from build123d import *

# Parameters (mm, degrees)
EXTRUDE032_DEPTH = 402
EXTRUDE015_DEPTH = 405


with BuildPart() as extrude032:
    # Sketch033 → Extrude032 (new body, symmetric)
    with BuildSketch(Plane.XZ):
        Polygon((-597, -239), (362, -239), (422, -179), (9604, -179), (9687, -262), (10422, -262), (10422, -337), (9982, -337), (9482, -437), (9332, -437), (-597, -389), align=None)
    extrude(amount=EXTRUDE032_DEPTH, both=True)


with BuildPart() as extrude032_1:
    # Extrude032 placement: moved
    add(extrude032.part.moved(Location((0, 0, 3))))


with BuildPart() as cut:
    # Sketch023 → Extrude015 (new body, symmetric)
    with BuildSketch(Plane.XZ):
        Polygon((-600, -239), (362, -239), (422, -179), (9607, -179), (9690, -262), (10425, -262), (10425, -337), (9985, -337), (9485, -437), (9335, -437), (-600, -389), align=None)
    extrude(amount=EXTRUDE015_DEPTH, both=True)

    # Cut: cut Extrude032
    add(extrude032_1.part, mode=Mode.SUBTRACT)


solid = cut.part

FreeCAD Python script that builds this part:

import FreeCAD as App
import Part
import Sketcher
from FreeCAD import Vector
Q = App.Units.Quantity

doc = App.newDocument("Part")
body = doc.addObject("PartDesign::Body", "Body")

# Sketch on XZ plane
sketch1 = body.newObject("Sketcher::SketchObject", "Sketch")
sketch1.AttachmentSupport = (doc.getObject("XZ_Plane"), [""])
sketch1.MapMode = "FlatFace"
sketch1.addGeometry([
    Part.LineSegment(Vector(362, -239, 0), Vector(-597, -239, 0)),  # 0
    Part.LineSegment(Vector(-597, -239, 0), Vector(-597, -389, 0)),  # 1
    Part.LineSegment(Vector(-597, -389, 0), Vector(9332, -437, 0)),  # 2
    Part.LineSegment(Vector(9332, -437, 0), Vector(9482, -437, 0)),  # 3
    Part.LineSegment(Vector(9482, -437, 0), Vector(9982, -337, 0)),  # 4
    Part.LineSegment(Vector(9982, -337, 0), Vector(10422, -337, 0)),  # 5
    Part.LineSegment(Vector(10422, -337, 0), Vector(10422, -262, 0)),  # 6
    Part.LineSegment(Vector(10422, -262, 0), Vector(9687, -262, 0)),  # 7
    Part.LineSegment(Vector(9687, -262, 0), Vector(9604, -179, 0)),  # 8
    Part.LineSegment(Vector(9604, -179, 0), Vector(422, -179, 0)),  # 9
    Part.LineSegment(Vector(422, -179, 0), Vector(362, -239, 0)),  # 10
], False)
sketch1.addConstraint([
    Sketcher.Constraint("Coincident", 0, 2, 1, 1),
    Sketcher.Constraint("Coincident", 1, 2, 2, 1),
    Sketcher.Constraint("Coincident", 2, 2, 3, 1),
    Sketcher.Constraint("Coincident", 3, 2, 4, 1),
    Sketcher.Constraint("Coincident", 4, 2, 5, 1),
    Sketcher.Constraint("Coincident", 5, 2, 6, 1),
    Sketcher.Constraint("Coincident", 6, 2, 7, 1),
    Sketcher.Constraint("Coincident", 7, 2, 8, 1),
    Sketcher.Constraint("Coincident", 8, 2, 9, 1),
    Sketcher.Constraint("Coincident", 9, 2, 10, 1),
    Sketcher.Constraint("Coincident", 10, 2, 0, 1),
    Sketcher.Constraint("Horizontal", 0),
    Sketcher.Constraint("Vertical", 1),
    Sketcher.Constraint("Horizontal", 3),
    Sketcher.Constraint("Horizontal", 5),
    Sketcher.Constraint("Vertical", 6),
    Sketcher.Constraint("Horizontal", 7),
    Sketcher.Constraint("Horizontal", 9),
    Sketcher.Constraint("Perpendicular", 8, 10),
    Sketcher.Constraint("Equal", 3, 1),
    Sketcher.Constraint("DistanceX", 0, 2, 0, 1, Q("959 mm")),
    Sketcher.Constraint("DistanceX", 3, 1, 3, 2, Q("150 mm")),
    Sketcher.Constraint("DistanceX", 5, 1, 5, 2, Q("440 mm")),
    Sketcher.Constraint("DistanceX", 7, 2, 7, 1, Q("735 mm")),
    Sketcher.Constraint("DistanceX", 9, 2, 9, 1, Q("9182 mm")),
    Sketcher.Constraint("DistanceY", 6, 1, 6, 2, Q("75 mm")),
    Sketcher.Constraint("Angle", 8, Q("135 deg")),
    Sketcher.Constraint("DistanceX", 0, 2, -1, 1, Q("597 mm")),
    Sketcher.Constraint("DistanceY", 0, 2, -1, 1, Q("239 mm")),
    Sketcher.Constraint("DistanceX", -1, 1, 2, 2, Q("9332 mm")),
    Sketcher.Constraint("DistanceY", 2, 2, -1, 1, Q("437 mm")),
    Sketcher.Constraint("DistanceX", -1, 1, 4, 2, Q("9982 mm")),
    Sketcher.Constraint("DistanceY", 4, 2, -1, 1, Q("337 mm")),
])
pad1 = body.newObject("PartDesign::Pad", "Pad")
pad1.Profile = sketch1
pad1.Length = 804
pad1.Midplane = True
body2 = doc.addObject("PartDesign::Body", "Body001")
doc.recompute()

body.Placement = App.Placement(Vector(0, 0, 3), App.Rotation(Vector(0, 0, 1), 0))
boolean = body2.newObject("PartDesign::Boolean", "Boolean")
boolean.Type = "Fuse"
boolean.addObjects([body])
body3 = doc.addObject("PartDesign::Body", "Body002")

# Sketch on XZ plane
sketch2 = body3.newObject("Sketcher::SketchObject", "Sketch001")
sketch2.AttachmentSupport = (doc.getObject("XZ_Plane002"), [""])
sketch2.MapMode = "FlatFace"
sketch2.addGeometry([
    Part.LineSegment(Vector(362, -239, 0), Vector(-600, -239, 0)),  # 0
    Part.LineSegment(Vector(-600, -239, 0), Vector(-600, -389, 0)),  # 1
    Part.LineSegment(Vector(-600, -389, 0), Vector(9335, -437, 0)),  # 2
    Part.LineSegment(Vector(9335, -437, 0), Vector(9485, -437, 0)),  # 3
    Part.LineSegment(Vector(9485, -437, 0), Vector(9985, -337, 0)),  # 4
    Part.LineSegment(Vector(9985, -337, 0), Vector(10425, -337, 0)),  # 5
    Part.LineSegment(Vector(10425, -337, 0), Vector(10425, -262, 0)),  # 6
    Part.LineSegment(Vector(10425, -262, 0), Vector(9690, -262, 0)),  # 7
    Part.LineSegment(Vector(9690, -262, 0), Vector(9607, -179, 0)),  # 8
    Part.LineSegment(Vector(9607, -179, 0), Vector(422, -179, 0)),  # 9
    Part.LineSegment(Vector(422, -179, 0), Vector(362, -239, 0)),  # 10
], False)
sketch2.addConstraint([
    Sketcher.Constraint("Coincident", 0, 2, 1, 1),
    Sketcher.Constraint("Coincident", 1, 2, 2, 1),
    Sketcher.Constraint("Coincident", 2, 2, 3, 1),
    Sketcher.Constraint("Coincident", 3, 2, 4, 1),
    Sketcher.Constraint("Coincident", 4, 2, 5, 1),
    Sketcher.Constraint("Coincident", 5, 2, 6, 1),
    Sketcher.Constraint("Coincident", 6, 2, 7, 1),
    Sketcher.Constraint("Coincident", 7, 2, 8, 1),
    Sketcher.Constraint("Coincident", 8, 2, 9, 1),
    Sketcher.Constraint("Coincident", 9, 2, 10, 1),
    Sketcher.Constraint("Coincident", 10, 2, 0, 1),
    Sketcher.Constraint("Horizontal", 0),
    Sketcher.Constraint("Vertical", 1),
    Sketcher.Constraint("Horizontal", 3),
    Sketcher.Constraint("Horizontal", 5),
    Sketcher.Constraint("Vertical", 6),
    Sketcher.Constraint("Horizontal", 7),
    Sketcher.Constraint("Horizontal", 9),
    Sketcher.Constraint("Perpendicular", 8, 10),
    Sketcher.Constraint("Equal", 3, 1),
    Sketcher.Constraint("DistanceX", 0, 2, 0, 1, Q("962 mm")),
    Sketcher.Constraint("DistanceX", 3, 1, 3, 2, Q("150 mm")),
    Sketcher.Constraint("DistanceX", 5, 1, 5, 2, Q("440 mm")),
    Sketcher.Constraint("DistanceX", 7, 2, 7, 1, Q("735 mm")),
    Sketcher.Constraint("DistanceX", 9, 2, 9, 1, Q("9185 mm")),
    Sketcher.Constraint("DistanceY", 6, 1, 6, 2, Q("75 mm")),
    Sketcher.Constraint("Angle", 8, Q("135 deg")),
    Sketcher.Constraint("DistanceX", 0, 2, -1, 1, Q("600 mm")),
    Sketcher.Constraint("DistanceY", 0, 2, -1, 1, Q("239 mm")),
    Sketcher.Constraint("DistanceX", -1, 1, 2, 2, Q("9335 mm")),
    Sketcher.Constraint("DistanceY", 2, 2, -1, 1, Q("437 mm")),
    Sketcher.Constraint("DistanceX", -1, 1, 4, 2, Q("9985 mm")),
    Sketcher.Constraint("DistanceY", 4, 2, -1, 1, Q("337 mm")),
])
pad2 = body3.newObject("PartDesign::Pad", "Pad001")
pad2.Profile = sketch2
pad2.Length = 810
pad2.Midplane = True
doc.recompute()

boolean2 = body3.newObject("PartDesign::Boolean", "Boolean001")
boolean2.Type = "Cut"
boolean2.addObjects([body2])

doc.recompute()
